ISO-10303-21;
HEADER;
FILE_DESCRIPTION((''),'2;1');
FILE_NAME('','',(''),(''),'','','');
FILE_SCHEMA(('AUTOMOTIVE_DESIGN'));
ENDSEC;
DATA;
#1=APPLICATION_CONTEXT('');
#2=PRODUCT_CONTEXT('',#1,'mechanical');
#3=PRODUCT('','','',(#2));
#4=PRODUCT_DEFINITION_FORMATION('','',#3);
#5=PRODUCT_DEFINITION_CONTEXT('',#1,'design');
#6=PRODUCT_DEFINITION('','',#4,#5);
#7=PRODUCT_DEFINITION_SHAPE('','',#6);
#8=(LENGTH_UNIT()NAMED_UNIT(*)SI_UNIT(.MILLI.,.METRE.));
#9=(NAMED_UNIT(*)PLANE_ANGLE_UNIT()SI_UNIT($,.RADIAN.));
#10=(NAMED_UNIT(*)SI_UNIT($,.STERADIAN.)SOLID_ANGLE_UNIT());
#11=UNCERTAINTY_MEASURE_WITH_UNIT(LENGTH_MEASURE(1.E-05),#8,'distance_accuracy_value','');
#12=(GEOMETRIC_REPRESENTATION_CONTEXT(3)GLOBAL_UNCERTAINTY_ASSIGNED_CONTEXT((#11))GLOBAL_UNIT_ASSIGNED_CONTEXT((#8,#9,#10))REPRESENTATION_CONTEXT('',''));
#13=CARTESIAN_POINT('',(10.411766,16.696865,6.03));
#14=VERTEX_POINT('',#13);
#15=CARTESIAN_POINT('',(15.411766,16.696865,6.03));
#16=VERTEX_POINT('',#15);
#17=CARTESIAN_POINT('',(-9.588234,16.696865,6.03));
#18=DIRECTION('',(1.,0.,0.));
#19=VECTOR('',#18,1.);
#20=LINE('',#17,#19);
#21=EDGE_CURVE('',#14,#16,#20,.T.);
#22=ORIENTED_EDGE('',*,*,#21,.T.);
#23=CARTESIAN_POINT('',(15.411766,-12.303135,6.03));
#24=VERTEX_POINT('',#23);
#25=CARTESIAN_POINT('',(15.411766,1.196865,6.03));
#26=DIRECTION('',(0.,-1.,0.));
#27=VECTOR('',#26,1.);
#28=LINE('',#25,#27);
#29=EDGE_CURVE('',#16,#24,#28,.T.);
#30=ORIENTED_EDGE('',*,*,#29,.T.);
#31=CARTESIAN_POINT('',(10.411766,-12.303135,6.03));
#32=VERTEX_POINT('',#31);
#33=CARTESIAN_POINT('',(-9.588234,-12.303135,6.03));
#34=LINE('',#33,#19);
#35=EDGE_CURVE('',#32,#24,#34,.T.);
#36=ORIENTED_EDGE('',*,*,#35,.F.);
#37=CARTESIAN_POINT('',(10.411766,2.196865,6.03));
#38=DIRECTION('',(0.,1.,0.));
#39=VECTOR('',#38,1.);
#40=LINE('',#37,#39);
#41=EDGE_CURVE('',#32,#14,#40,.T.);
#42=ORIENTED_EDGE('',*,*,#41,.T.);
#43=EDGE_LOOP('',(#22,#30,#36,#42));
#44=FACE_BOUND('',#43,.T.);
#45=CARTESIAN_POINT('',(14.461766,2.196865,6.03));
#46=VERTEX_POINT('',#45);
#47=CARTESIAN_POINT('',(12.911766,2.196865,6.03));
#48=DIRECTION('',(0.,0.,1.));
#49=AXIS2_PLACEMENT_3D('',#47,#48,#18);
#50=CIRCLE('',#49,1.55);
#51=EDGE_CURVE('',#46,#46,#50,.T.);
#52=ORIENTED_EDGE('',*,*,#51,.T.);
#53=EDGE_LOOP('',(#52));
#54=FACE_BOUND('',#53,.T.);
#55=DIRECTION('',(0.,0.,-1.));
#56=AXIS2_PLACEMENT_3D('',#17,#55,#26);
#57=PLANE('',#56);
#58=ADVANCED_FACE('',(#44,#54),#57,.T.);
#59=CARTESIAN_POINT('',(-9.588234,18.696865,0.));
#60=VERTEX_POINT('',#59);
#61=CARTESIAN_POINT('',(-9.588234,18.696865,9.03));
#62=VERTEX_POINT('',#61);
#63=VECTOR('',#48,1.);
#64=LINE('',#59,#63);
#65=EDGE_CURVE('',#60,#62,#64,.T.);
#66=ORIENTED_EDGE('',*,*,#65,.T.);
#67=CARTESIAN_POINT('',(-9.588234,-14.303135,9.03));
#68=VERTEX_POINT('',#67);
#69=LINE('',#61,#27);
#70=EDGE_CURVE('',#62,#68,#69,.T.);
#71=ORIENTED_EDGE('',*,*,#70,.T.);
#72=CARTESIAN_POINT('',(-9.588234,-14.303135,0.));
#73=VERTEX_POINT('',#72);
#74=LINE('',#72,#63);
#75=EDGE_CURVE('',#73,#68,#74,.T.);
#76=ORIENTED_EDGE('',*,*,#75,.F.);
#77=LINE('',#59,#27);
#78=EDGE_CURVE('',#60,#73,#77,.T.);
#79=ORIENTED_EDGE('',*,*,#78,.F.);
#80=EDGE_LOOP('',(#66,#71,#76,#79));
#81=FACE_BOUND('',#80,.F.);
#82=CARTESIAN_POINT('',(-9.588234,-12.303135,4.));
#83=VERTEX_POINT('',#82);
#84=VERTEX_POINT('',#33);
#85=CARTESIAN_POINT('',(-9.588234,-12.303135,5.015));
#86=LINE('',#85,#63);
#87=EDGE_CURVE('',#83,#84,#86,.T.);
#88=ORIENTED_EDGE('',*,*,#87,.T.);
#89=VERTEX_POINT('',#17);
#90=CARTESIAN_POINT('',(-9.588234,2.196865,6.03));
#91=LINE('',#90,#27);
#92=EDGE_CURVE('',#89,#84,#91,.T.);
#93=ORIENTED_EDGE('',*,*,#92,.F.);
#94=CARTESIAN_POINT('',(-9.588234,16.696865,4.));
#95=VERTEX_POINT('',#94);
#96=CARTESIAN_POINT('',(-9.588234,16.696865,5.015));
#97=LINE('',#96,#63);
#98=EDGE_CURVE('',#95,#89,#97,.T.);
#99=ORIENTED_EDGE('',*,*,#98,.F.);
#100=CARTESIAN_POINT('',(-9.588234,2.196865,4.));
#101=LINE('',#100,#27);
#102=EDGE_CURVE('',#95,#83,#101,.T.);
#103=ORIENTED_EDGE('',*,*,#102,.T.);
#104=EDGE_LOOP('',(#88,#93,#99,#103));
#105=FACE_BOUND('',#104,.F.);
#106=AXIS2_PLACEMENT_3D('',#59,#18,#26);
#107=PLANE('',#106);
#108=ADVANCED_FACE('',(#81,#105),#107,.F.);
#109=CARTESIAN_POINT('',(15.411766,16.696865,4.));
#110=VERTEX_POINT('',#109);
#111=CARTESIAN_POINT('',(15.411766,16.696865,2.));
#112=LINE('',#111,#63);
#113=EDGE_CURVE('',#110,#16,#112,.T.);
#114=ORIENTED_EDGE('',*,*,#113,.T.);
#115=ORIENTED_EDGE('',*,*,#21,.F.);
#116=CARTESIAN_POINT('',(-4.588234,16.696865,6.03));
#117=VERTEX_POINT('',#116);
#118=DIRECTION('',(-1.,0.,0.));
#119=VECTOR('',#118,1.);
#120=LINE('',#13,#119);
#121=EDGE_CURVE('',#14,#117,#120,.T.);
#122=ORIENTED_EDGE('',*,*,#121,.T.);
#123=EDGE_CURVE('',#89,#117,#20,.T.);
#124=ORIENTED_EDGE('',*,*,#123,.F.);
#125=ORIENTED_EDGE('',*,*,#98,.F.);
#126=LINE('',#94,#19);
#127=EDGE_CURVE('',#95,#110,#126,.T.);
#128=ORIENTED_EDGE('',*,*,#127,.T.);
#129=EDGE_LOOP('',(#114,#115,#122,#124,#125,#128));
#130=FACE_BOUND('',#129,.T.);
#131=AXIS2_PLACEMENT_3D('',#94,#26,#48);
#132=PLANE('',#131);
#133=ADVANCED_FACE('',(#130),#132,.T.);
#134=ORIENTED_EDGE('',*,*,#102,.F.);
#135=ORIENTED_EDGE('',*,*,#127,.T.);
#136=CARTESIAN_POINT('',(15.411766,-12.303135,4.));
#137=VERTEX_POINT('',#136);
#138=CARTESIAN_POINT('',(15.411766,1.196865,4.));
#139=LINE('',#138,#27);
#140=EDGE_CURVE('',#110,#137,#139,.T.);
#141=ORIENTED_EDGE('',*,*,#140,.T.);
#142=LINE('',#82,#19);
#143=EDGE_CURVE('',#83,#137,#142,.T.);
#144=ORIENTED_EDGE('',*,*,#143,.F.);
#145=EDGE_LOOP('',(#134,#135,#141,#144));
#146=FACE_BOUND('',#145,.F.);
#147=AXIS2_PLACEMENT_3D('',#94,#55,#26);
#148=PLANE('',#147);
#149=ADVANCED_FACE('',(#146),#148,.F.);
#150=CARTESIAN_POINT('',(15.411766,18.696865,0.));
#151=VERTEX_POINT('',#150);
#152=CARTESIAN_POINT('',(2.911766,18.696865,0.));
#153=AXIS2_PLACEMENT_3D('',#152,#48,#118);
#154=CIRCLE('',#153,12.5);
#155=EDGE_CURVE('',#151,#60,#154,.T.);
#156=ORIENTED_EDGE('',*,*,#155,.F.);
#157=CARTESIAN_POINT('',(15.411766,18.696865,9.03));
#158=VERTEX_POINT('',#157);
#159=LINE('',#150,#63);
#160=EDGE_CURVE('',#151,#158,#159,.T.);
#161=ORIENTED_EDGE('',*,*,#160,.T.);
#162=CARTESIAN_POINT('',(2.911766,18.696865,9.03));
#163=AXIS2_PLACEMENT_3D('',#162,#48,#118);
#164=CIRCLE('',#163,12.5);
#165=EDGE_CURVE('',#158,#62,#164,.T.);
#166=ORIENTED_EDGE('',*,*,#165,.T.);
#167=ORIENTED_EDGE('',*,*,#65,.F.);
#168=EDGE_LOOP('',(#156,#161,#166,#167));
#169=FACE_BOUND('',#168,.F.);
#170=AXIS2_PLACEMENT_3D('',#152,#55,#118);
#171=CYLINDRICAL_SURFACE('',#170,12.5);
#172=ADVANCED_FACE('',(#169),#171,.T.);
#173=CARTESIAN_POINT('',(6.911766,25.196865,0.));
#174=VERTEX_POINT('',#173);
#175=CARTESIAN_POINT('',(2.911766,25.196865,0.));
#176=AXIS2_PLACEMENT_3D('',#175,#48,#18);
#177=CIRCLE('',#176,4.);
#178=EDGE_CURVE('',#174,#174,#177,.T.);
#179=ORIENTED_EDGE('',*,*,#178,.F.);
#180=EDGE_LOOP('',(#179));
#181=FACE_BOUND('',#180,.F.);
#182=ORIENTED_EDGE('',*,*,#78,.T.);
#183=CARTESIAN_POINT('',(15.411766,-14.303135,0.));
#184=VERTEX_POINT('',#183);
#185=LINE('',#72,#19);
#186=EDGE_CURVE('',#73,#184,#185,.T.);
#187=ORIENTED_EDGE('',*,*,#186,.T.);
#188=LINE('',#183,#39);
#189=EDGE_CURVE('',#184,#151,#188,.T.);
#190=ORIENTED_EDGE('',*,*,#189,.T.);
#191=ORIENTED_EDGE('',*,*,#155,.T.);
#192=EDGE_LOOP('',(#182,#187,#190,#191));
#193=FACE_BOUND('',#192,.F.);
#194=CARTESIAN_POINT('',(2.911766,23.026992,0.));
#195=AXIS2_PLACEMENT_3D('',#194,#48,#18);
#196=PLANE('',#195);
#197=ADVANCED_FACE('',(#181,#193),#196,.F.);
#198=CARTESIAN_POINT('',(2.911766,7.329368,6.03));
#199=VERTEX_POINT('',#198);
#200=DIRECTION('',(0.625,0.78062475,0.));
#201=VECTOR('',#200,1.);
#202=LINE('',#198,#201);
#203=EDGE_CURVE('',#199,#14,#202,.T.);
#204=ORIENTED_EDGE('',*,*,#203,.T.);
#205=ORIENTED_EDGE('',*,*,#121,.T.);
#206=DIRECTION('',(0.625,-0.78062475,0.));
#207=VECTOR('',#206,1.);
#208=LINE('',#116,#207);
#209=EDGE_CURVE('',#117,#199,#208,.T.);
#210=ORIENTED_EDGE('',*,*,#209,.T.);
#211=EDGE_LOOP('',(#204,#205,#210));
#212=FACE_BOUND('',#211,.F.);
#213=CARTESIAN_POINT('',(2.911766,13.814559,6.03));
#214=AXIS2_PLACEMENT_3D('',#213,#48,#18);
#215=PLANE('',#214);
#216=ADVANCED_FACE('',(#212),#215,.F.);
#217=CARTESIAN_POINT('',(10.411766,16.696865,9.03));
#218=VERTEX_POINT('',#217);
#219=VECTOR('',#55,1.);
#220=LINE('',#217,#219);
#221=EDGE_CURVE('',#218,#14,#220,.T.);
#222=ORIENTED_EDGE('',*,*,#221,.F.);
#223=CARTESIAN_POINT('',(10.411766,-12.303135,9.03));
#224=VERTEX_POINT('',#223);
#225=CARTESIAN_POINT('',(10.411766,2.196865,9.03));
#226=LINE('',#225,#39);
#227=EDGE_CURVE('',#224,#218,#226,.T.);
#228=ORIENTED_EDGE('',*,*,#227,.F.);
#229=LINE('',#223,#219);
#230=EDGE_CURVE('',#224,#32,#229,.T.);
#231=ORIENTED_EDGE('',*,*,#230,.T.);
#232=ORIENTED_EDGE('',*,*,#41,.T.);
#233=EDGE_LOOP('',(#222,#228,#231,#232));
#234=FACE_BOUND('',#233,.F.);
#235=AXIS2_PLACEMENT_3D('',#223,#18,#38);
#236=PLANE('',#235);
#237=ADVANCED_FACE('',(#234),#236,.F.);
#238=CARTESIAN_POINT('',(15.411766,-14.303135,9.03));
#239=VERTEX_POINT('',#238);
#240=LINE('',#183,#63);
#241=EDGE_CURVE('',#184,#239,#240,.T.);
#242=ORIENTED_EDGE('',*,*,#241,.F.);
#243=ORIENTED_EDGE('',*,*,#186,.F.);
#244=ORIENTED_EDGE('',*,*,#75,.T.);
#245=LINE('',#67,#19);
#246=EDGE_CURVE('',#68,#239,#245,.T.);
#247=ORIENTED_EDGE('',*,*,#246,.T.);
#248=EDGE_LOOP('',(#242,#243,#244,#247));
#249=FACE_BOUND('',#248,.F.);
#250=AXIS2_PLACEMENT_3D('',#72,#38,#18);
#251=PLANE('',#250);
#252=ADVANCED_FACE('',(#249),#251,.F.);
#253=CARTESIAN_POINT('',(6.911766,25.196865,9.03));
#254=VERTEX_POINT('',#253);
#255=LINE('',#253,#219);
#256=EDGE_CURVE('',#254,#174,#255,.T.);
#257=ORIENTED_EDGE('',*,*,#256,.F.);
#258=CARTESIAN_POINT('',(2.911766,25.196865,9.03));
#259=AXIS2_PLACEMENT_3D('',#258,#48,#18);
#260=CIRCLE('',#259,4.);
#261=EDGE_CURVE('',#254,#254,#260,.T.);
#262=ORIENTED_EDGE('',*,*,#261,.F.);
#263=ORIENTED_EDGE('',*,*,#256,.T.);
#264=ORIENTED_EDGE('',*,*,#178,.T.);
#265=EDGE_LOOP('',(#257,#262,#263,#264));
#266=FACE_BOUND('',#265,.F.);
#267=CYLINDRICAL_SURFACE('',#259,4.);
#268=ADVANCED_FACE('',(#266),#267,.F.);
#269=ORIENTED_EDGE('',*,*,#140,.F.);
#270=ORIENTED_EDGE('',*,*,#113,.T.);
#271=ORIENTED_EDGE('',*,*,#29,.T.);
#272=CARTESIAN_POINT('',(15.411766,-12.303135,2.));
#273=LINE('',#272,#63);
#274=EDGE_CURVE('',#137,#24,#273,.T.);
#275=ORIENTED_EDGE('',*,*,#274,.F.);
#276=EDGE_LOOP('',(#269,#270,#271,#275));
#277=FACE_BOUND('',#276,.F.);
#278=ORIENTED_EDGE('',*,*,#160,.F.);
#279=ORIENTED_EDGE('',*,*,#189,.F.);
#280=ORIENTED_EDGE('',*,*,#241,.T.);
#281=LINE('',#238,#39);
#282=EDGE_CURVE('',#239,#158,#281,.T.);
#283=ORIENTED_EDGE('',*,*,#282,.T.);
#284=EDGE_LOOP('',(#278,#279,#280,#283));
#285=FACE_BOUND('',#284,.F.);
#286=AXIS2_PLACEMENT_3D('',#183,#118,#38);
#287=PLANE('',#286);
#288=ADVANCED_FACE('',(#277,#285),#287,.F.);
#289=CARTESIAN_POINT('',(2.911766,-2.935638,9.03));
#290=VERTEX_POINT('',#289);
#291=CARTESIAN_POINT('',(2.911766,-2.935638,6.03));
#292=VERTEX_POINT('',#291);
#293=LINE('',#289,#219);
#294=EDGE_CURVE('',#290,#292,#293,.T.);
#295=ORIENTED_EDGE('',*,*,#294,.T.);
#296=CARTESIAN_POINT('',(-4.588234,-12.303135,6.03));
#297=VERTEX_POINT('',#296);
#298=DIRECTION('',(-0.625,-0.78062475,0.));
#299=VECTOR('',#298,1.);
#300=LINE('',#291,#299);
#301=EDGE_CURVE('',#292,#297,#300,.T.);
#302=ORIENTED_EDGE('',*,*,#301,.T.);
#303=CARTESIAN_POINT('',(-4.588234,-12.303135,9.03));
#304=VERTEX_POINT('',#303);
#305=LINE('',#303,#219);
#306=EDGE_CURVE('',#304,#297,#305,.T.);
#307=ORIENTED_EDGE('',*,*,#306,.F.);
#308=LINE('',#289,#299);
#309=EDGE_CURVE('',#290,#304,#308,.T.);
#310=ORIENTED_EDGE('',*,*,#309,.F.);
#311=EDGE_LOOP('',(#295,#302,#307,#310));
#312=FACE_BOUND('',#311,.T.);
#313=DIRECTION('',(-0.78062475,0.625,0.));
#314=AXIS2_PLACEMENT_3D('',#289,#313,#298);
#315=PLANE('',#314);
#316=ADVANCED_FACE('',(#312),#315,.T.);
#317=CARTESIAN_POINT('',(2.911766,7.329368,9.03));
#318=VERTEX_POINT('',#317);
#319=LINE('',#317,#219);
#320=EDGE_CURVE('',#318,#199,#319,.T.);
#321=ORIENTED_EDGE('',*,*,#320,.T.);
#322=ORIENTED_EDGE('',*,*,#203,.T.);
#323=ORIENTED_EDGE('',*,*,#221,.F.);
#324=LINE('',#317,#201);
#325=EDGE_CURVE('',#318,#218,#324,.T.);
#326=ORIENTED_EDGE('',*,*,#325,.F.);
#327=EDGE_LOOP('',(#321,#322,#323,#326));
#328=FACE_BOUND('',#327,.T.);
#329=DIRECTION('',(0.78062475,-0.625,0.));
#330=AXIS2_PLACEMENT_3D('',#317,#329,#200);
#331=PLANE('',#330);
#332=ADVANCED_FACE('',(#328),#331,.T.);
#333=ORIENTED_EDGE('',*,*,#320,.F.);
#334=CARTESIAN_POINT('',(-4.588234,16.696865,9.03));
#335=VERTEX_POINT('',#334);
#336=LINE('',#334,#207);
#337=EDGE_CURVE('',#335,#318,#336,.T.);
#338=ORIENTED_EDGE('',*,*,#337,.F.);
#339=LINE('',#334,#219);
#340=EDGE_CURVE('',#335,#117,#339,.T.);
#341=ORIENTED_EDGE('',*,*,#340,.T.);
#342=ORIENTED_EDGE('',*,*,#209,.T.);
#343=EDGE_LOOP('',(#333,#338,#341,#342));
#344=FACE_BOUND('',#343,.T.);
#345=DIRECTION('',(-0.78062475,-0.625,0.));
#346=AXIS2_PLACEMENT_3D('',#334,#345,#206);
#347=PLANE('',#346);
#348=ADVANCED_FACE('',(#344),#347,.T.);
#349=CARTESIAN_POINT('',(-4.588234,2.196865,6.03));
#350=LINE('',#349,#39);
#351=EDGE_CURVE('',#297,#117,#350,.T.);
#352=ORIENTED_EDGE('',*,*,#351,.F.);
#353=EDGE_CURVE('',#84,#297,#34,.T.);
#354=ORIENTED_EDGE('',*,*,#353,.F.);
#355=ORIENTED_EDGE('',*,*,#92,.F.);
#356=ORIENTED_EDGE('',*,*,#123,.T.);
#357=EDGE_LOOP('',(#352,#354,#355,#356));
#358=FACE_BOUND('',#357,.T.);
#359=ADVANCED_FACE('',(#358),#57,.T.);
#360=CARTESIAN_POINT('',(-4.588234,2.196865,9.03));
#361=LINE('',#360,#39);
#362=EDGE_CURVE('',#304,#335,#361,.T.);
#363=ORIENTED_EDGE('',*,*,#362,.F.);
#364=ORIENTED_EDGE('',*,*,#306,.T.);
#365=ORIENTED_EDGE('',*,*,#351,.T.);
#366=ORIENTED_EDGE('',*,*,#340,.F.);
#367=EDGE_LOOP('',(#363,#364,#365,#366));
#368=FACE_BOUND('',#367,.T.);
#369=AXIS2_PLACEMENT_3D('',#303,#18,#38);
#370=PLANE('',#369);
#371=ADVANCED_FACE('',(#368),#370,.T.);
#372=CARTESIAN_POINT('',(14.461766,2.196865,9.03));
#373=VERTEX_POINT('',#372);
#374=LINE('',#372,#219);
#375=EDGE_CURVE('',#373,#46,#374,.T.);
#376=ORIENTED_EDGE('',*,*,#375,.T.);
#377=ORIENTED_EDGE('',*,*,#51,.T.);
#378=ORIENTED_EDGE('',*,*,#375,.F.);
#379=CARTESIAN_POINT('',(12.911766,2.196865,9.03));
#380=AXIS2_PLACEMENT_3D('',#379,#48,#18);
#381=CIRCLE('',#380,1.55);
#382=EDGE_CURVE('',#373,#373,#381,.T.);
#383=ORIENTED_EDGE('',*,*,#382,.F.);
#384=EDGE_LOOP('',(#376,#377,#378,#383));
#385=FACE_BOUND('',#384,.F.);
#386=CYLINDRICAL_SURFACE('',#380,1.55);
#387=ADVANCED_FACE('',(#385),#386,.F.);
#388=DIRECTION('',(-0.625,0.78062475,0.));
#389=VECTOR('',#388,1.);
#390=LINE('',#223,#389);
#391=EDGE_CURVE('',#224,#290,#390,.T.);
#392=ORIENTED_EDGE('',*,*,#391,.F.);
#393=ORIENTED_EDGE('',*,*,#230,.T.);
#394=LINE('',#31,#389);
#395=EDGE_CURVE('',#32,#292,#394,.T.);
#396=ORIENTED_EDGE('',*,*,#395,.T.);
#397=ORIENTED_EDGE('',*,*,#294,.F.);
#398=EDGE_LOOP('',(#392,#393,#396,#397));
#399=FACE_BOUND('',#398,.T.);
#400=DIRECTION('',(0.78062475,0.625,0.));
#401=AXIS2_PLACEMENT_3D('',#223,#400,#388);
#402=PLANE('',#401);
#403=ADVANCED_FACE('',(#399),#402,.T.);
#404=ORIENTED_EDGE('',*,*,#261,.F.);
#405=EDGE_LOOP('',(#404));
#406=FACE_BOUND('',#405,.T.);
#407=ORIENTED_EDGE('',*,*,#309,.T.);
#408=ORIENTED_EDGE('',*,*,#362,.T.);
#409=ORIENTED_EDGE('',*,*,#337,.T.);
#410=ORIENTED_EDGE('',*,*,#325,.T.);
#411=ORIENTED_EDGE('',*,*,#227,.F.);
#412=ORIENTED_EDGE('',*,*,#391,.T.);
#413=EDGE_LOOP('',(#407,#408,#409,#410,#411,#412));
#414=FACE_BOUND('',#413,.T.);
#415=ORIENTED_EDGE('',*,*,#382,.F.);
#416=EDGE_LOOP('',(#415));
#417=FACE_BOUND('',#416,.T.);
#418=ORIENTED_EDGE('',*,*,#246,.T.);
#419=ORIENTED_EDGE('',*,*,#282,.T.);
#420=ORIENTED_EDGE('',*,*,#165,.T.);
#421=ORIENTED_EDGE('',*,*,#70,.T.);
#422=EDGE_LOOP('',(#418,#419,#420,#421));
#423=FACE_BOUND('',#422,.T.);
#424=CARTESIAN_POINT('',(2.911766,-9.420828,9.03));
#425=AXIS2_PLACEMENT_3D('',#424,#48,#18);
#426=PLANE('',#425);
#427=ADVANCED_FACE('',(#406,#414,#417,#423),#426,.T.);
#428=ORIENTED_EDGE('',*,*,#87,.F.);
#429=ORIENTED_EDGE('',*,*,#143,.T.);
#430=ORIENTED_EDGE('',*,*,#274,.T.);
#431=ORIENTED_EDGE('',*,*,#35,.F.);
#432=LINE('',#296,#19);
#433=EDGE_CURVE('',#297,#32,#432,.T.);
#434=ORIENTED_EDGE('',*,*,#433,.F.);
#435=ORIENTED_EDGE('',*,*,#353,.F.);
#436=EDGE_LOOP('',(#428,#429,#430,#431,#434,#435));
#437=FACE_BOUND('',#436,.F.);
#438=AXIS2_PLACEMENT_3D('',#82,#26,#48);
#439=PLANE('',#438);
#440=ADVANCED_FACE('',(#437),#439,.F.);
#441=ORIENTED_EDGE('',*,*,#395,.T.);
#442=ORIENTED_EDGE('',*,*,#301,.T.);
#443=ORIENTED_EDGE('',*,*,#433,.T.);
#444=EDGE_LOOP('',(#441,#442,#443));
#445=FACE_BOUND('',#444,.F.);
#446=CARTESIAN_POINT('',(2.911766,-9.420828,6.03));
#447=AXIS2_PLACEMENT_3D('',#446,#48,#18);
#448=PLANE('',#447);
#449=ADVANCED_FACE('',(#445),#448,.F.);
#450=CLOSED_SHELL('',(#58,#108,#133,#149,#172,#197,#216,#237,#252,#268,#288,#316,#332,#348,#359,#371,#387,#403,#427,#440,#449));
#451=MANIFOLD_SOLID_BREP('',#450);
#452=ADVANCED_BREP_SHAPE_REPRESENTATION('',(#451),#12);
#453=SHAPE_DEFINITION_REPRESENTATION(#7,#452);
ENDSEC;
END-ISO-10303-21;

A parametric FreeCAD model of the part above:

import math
import FreeCAD as App
import Part
import Sketcher

V = App.Vector


def add_polygon(sketch, points):
    """Adds a closed chain of lines whose ends are joined by coincident constraints."""
    first, n = sketch.GeometryCount, len(points)
    for a, b in zip(points, points[1:] + points[:1]):
        sketch.addGeometry(Part.LineSegment(App.Vector(*a, 0), App.Vector(*b, 0)), False)
    for i in range(n):
        sketch.addConstraint(Sketcher.Constraint("Coincident", first + i, 2, first + (i + 1) % n, 1))

doc = App.newDocument("Part")
body = doc.addObject("PartDesign::Body", "Body")

# Sketch on XY plane
sketch1 = body.newObject("Sketcher::SketchObject", "Sketch")
sketch1.AttachmentSupport = (doc.getObject("XY_Plane"), [""])
sketch1.MapMode = "FlatFace"
sketch1.addGeometry([
    Part.ArcOfCircle(Part.Circle(V(3, 19, 0), V(0, 0, 1), 12), math.radians(0), math.radians(180)),
    Part.LineSegment(V(-10, 19, 0), V(-10, -14, 0)),
    Part.LineSegment(V(-10, -14, 0), V(15, -14, 0)),
    Part.LineSegment(V(15, -14, 0), V(15, 19, 0)),
], False)
sketch1.addConstraint([
    Sketcher.Constraint("Tangent", 0, 2, 1, 1),
    Sketcher.Constraint("Coincident", 1, 2, 2, 1),
    Sketcher.Constraint("Coincident", 2, 2, 3, 1),
    Sketcher.Constraint("Tangent", 3, 2, 0, 1),
    Sketcher.Constraint("Vertical", 1),
    Sketcher.Constraint("Horizontal", 2),
    Sketcher.Constraint("Vertical", 3),
    Sketcher.Constraint("Radius", 0, 12.5),
    Sketcher.Constraint("DistanceY", 1, 2, 1, 1, 33.0),
    Sketcher.Constraint("DistanceX", -1, 1, 0, 3, 2.911766),
    Sketcher.Constraint("DistanceY", -1, 1, 0, 3, 18.696865),
])
pad1 = body.newObject("PartDesign::Pad", "Pad")
pad1.Profile = sketch1
pad1.Length = 9.03

# Sketch on YZ plane
sketch2 = body.newObject("Sketcher::SketchObject", "Sketch001")
sketch2.AttachmentSupport = (doc.getObject("YZ_Plane"), [""])
sketch2.MapMode = "FlatFace"
sketch2.AttachmentOffset = App.Placement(V(0, 0, -9.588234), App.Rotation())
add_polygon(sketch2, [(16.7, 6), (16.7, 4), (-12.3, 4), (-12.3, 6)])  # lines 0-3
sketch2.addConstraint([
    Sketcher.Constraint("Vertical", 0),
    Sketcher.Constraint("Horizontal", 1),
    Sketcher.Constraint("Vertical", 2),
    Sketcher.Constraint("Horizontal", 3),
    Sketcher.Constraint("DistanceX", 1, 2, 1, 1, 29.0),
    Sketcher.Constraint("DistanceY", -1, 1, 0, 2, 4.0),
    Sketcher.Constraint("DistanceY", 0, 2, 0, 1, 2.03),
    Sketcher.Constraint("DistanceX", -1, 1, 0, 2, 16.696865),
])
pocket1 = body.newObject("PartDesign::Pocket", "Pocket")
pocket1.Profile = sketch2
pocket1.Type = "ThroughAll"
pocket1.Reversed = True

# Sketch on XY plane
sketch3 = body.newObject("Sketcher::SketchObject", "Sketch002")
sketch3.AttachmentSupport = (doc.getObject("XY_Plane"), [""])
sketch3.MapMode = "FlatFace"
sketch3.AttachmentOffset = App.Placement(V(0, 0, 9.03), App.Rotation())
add_polygon(sketch3, [(-5, 17), (-5, -12), (10, -12), (10, 17)])  # lines 0-3
sketch3.addConstraint([
    Sketcher.Constraint("Vertical", 0),
    Sketcher.Constraint("Horizontal", 1),
    Sketcher.Constraint("Vertical", 2),
    Sketcher.Constraint("Horizontal", 3),
    Sketcher.Constraint("DistanceX", 1, 1, 1, 2, 15.0),
    Sketcher.Constraint("DistanceY", 0, 2, 0, 1, 29.0),
    Sketcher.Constraint("DistanceX", 0, 2, -1, 1, 4.588234),
    Sketcher.Constraint("DistanceY", 0, 2, -1, 1, 12.303135),
])
pocket2 = body.newObject("PartDesign::Pocket", "Pocket001")
pocket2.Profile = sketch3
pocket2.Length = 3

# Sketch on XY plane
sketch4 = body.newObject("Sketcher::SketchObject", "Sketch003")
sketch4.AttachmentSupport = (doc.getObject("XY_Plane"), [""])
sketch4.MapMode = "FlatFace"
sketch4.AttachmentOffset = App.Placement(V(0, 0, 9.03), App.Rotation())
add_polygon(sketch4, [(3, -3), (-5, -12), (10, -12)])  # lines 0-2
add_polygon(sketch4, [(10, 17), (-5, 17), (3, 7)])  # lines 3-5
sketch4.addConstraint([
    Sketcher.Constraint("Horizontal", 1),
    Sketcher.Constraint("Horizontal", 3),
    Sketcher.Constraint("Parallel", 2, 4),
    Sketcher.Constraint("Parallel", 0, 5),
    Sketcher.Constraint("Vertical", 0, 2, 3, 2),
    Sketcher.Constraint("Vertical", 2, 2, 4, 2),
    Sketcher.Constraint("Vertical", 1, 2, 5, 2),
    Sketcher.Constraint("DistanceX", 1, 1, 1, 2, 15.0),
    Sketcher.Constraint("Distance", 0, 12.0),
    Sketcher.Constraint("DistanceY", 0, 2, 3, 2, 29.0),
    Sketcher.Constraint("DistanceY", -1, 1, 4, 2, 7.329368),
    Sketcher.Constraint("DistanceX", 0, 2, -1, 1, 4.588234),
])
pad2 = body.newObject("PartDesign::Pad", "Pad001")
pad2.Profile = sketch4
pad2.Length = 3
pad2.Reversed = True

# Sketch on XY plane
sketch5 = body.newObject("Sketcher::SketchObject", "Sketch004")
sketch5.AttachmentSupport = (doc.getObject("XY_Plane"), [""])
sketch5.MapMode = "FlatFace"
sketch5.AttachmentOffset = App.Placement(V(0, 0, 9.03), App.Rotation())
sketch5.addGeometry(Part.Circle(V(12.9, 2.2, 0), V(0, 0, 1), 1.6), False)
sketch5.addConstraint([
    Sketcher.Constraint("Diameter", 0, 3.1),
    Sketcher.Constraint("DistanceX", -1, 1, 0, 3, 12.911766),
    Sketcher.Constraint("DistanceY", -1, 1, 0, 3, 2.196865),
])
pocket3 = body.newObject("PartDesign::Pocket", "Pocket002")
pocket3.Profile = sketch5
pocket3.Length = 3

# Sketch on XY plane
sketch6 = body.newObject("Sketcher::SketchObject", "Sketch005")
sketch6.AttachmentSupport = (doc.getObject("XY_Plane"), [""])
sketch6.MapMode = "FlatFace"
sketch6.AttachmentOffset = App.Placement(V(0, 0, 9.03), App.Rotation())
sketch6.addGeometry(Part.Circle(V(2.9, 25.2, 0), V(0, 0, 1), 4), False)
sketch6.addConstraint([
    Sketcher.Constraint("Diameter", 0, 8.0),
    Sketcher.Constraint("DistanceX", -1, 1, 0, 3, 2.911766),
    Sketcher.Constraint("DistanceY", -1, 1, 0, 3, 25.196865),
])
pocket4 = body.newObject("PartDesign::Pocket", "Pocket003")
pocket4.Profile = sketch6
pocket4.Type = "ThroughAll"

doc.recompute()
